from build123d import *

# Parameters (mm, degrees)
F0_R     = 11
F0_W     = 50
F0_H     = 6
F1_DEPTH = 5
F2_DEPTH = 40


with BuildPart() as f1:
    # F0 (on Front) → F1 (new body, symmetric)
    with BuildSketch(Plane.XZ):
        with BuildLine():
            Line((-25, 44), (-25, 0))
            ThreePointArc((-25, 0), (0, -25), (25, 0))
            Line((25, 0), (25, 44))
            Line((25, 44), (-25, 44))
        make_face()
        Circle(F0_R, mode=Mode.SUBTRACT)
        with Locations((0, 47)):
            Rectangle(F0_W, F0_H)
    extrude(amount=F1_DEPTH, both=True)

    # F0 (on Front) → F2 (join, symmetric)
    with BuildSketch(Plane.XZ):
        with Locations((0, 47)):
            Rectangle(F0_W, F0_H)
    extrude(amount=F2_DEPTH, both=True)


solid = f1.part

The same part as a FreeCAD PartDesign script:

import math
import FreeCAD as App
import Part
import Sketcher
Q = App.Units.Quantity


def add_polygon(sketch, points):
    """Adds a closed chain of lines whose ends are joined by coincident constraints."""
    first, n = sketch.GeometryCount, len(points)
    for a, b in zip(points, points[1:] + points[:1]):
        sketch.addGeometry(Part.LineSegment(App.Vector(*a, 0), App.Vector(*b, 0)), False)
    for i in range(n):
        sketch.addConstraint(Sketcher.Constraint("Coincident", first + i, 2, first + (i + 1) % n, 1))

doc = App.newDocument("Part")
params = doc.addObject("Spreadsheet::Sheet", "Params")
for row, (alias, value) in enumerate([
    ("sketch1_diameter", "22 mm"),
    ("sketch1_radius", "25 mm"),
    ("pad1_length", "10 mm"),
    ("sketch2_width", "50 mm"),
    ("sketch2_height", "6 mm"),
    ("pad2_length", "80 mm"),
], start=1):
    params.set(f"A{row}", alias)
    params.set(f"B{row}", "=" + value)
    params.setAlias(f"B{row}", alias)

body = doc.addObject("PartDesign::Body", "Body")

sketch1 = body.newObject("Sketcher::SketchObject", "Sketch")
sketch1.AttachmentSupport = (doc.getObject("XZ_Plane"), [""])
sketch1.MapMode = "FlatFace"
sketch1.addGeometry(Part.ArcOfCircle(Part.Circle(App.Vector(0, 0, 0), App.Vector(0, 0, 1), 25), math.radians(180), math.radians(360)), False)
sketch1.addGeometry(Part.LineSegment(App.Vector(25, 0, 0), App.Vector(25, 50, 0)), False)
sketch1.addGeometry(Part.LineSegment(App.Vector(25, 50, 0), App.Vector(-25, 50, 0)), False)
sketch1.addGeometry(Part.LineSegment(App.Vector(-25, 50, 0), App.Vector(-25, 0, 0)), False)
sketch1.addGeometry(Part.Circle(App.Vector(0, 0, 0), App.Vector(0, 0, 1), 11), False)
sketch1.addConstraint(Sketcher.Constraint("Tangent", 0, 2, 1, 1))
sketch1.addConstraint(Sketcher.Constraint("Coincident", 1, 2, 2, 1))
sketch1.addConstraint(Sketcher.Constraint("Coincident", 2, 2, 3, 1))
sketch1.addConstraint(Sketcher.Constraint("Tangent", 3, 2, 0, 1))
sketch1.addConstraint(Sketcher.Constraint("Vertical", 1))
sketch1.addConstraint(Sketcher.Constraint("Horizontal", 2))
sketch1.addConstraint(Sketcher.Constraint("Vertical", 3))
sketch1.addConstraint(Sketcher.Constraint("Coincident", 0, 3, -1, 1))
sketch1.addConstraint(Sketcher.Constraint("Coincident", 4, 3, -1, 1))
sketch1.addConstraint(Sketcher.Constraint("Equal", 2, 1))
sketch1.addConstraint(Sketcher.Constraint("Diameter", 4, Q("22 mm")))
sketch1.addConstraint(Sketcher.Constraint("Radius", 0, Q("25 mm")))
sketch1.setExpression("Constraints[10]", "Params.sketch1_diameter")
sketch1.setExpression("Constraints[11]", "Params.sketch1_radius")
pad1 = body.newObject("PartDesign::Pad", "Pad")
pad1.Profile = sketch1
pad1.setExpression("Length", "Params.pad1_length")
pad1.Midplane = True

sketch2 = body.newObject("Sketcher::SketchObject", "Sketch001")
sketch2.AttachmentSupport = (doc.getObject("XZ_Plane"), [""])
sketch2.MapMode = "FlatFace"
add_polygon(sketch2, [(-25, 50), (-25, 44), (25, 44), (25, 50)])
sketch2.addConstraint(Sketcher.Constraint("Vertical", 0))
sketch2.addConstraint(Sketcher.Constraint("Horizontal", 1))
sketch2.addConstraint(Sketcher.Constraint("Vertical", 2))
sketch2.addConstraint(Sketcher.Constraint("Horizontal", 3))
sketch2.addConstraint(Sketcher.Constraint("DistanceX", 1, 1, 1, 2, Q("50 mm")))
sketch2.addConstraint(Sketcher.Constraint("DistanceY", 0, 2, 0, 1, Q("6 mm")))
sketch2.addConstraint(Sketcher.Constraint("DistanceX", 0, 2, -1, 1, Q("25 mm")))
sketch2.addConstraint(Sketcher.Constraint("DistanceY", -1, 1, 0, 2, Q("44 mm")))
sketch2.setExpression("Constraints[8]", "Params.sketch2_width")
sketch2.setExpression("Constraints[9]", "Params.sketch2_height")
pad2 = body.newObject("PartDesign::Pad", "Pad001")
pad2.Profile = sketch2
pad2.setExpression("Length", "Params.pad2_length")
pad2.Midplane = True

doc.recompute()
